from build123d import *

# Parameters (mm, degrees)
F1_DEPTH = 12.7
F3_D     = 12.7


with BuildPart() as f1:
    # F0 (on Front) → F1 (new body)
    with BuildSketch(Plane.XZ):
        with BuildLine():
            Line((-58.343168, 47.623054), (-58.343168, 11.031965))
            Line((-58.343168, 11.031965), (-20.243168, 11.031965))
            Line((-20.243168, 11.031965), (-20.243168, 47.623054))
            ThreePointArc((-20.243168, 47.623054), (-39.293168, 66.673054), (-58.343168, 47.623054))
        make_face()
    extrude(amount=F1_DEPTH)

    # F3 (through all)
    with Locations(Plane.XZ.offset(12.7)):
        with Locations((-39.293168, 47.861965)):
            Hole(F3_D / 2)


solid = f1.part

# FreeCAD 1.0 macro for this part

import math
import FreeCAD as App
import Part
import Sketcher
from FreeCAD import Vector
Q = App.Units.Quantity

doc = App.newDocument("Part")
params = doc.addObject("Spreadsheet::Sheet", "Params")
for row, (alias, value) in enumerate([
    ("sketch1_radius", "0.75 in"),
    ("pad1_length", "0.5 in"),
    ("sketch2_diameter", "0.5 in"),
    ("hole_diameter", "0.5 in"),
], start=1):
    params.set(f"A{row}", alias)
    params.set(f"B{row}", "=" + value)
    params.setAlias(f"B{row}", alias)

body = doc.addObject("PartDesign::Body", "Body")

# Sketch on XZ plane
sketch1 = doc.addObject("Sketcher::SketchObject", "Sketch")
body.addObject(sketch1)
sketch1.AttachmentSupport = (doc.XZ_Plane, [""])
sketch1.MapMode = "FlatFace"
sketch1.addGeometry([
    Part.LineSegment(Vector(-58, 48, 0), Vector(-58, 11, 0)),
    Part.LineSegment(Vector(-58, 11, 0), Vector(-20, 11, 0)),
    Part.LineSegment(Vector(-20, 11, 0), Vector(-20, 48, 0)),
    Part.ArcOfCircle(Part.Circle(Vector(-39, 48, 0), Vector(0, 0, 1), 19), math.radians(0), math.radians(180)),
], False)
sketch1.addConstraint([
    Sketcher.Constraint("Coincident", 0, 2, 1, 1),
    Sketcher.Constraint("Coincident", 1, 2, 2, 1),
    Sketcher.Constraint("Tangent", 2, 2, 3, 1),
    Sketcher.Constraint("Tangent", 3, 2, 0, 1),
    Sketcher.Constraint("Vertical", 0),
    Sketcher.Constraint("Horizontal", 1),
    Sketcher.Constraint("Vertical", 2),
    Sketcher.Constraint("Radius", 3, Q("0.75 in")),
    Sketcher.Constraint("DistanceY", 0, 2, 0, 1, 36.591089),
    Sketcher.Constraint("DistanceX", 1, 2, -1, 1, 20.243168),
    Sketcher.Constraint("DistanceY", -1, 1, 3, 3, 47.623054),
])
sketch1.setExpression("Constraints[7]", "Params.sketch1_radius")
pad1 = doc.addObject("PartDesign::Pad", "Pad")
body.addObject(pad1)
pad1.Profile = sketch1
pad1.setExpression("Length", "Params.pad1_length")

# Sketch on XZ plane
sketch2 = doc.addObject("Sketcher::SketchObject", "Sketch001")
body.addObject(sketch2)
sketch2.AttachmentSupport = (doc.XZ_Plane, [""])
sketch2.MapMode = "FlatFace"
sketch2.AttachmentOffset = App.Placement(Vector(0, 0, 0.5 * 25.4), App.Rotation())
sketch2.addGeometry(Part.Circle(Vector(-39, 48, 0), Vector(0, 0, 1), 6), False)
sketch2.addConstraint([
    Sketcher.Constraint("Diameter", 0, Q("0.5 in")),
    Sketcher.Constraint("DistanceX", 0, 3, -1, 1, 39.293168),
    Sketcher.Constraint("DistanceY", -1, 1, 0, 3, 47.861965),
])
sketch2.setExpression("Constraints[0]", "Params.sketch2_diameter")
doc.recompute()
hole = doc.addObject("PartDesign::Hole", "Hole")
body.addObject(hole)
hole.Profile = sketch2
hole.ThreadType = "None"
hole.setExpression("Diameter", "Params.hole_diameter")
hole.DepthType = "ThroughAll"

doc.recompute()
